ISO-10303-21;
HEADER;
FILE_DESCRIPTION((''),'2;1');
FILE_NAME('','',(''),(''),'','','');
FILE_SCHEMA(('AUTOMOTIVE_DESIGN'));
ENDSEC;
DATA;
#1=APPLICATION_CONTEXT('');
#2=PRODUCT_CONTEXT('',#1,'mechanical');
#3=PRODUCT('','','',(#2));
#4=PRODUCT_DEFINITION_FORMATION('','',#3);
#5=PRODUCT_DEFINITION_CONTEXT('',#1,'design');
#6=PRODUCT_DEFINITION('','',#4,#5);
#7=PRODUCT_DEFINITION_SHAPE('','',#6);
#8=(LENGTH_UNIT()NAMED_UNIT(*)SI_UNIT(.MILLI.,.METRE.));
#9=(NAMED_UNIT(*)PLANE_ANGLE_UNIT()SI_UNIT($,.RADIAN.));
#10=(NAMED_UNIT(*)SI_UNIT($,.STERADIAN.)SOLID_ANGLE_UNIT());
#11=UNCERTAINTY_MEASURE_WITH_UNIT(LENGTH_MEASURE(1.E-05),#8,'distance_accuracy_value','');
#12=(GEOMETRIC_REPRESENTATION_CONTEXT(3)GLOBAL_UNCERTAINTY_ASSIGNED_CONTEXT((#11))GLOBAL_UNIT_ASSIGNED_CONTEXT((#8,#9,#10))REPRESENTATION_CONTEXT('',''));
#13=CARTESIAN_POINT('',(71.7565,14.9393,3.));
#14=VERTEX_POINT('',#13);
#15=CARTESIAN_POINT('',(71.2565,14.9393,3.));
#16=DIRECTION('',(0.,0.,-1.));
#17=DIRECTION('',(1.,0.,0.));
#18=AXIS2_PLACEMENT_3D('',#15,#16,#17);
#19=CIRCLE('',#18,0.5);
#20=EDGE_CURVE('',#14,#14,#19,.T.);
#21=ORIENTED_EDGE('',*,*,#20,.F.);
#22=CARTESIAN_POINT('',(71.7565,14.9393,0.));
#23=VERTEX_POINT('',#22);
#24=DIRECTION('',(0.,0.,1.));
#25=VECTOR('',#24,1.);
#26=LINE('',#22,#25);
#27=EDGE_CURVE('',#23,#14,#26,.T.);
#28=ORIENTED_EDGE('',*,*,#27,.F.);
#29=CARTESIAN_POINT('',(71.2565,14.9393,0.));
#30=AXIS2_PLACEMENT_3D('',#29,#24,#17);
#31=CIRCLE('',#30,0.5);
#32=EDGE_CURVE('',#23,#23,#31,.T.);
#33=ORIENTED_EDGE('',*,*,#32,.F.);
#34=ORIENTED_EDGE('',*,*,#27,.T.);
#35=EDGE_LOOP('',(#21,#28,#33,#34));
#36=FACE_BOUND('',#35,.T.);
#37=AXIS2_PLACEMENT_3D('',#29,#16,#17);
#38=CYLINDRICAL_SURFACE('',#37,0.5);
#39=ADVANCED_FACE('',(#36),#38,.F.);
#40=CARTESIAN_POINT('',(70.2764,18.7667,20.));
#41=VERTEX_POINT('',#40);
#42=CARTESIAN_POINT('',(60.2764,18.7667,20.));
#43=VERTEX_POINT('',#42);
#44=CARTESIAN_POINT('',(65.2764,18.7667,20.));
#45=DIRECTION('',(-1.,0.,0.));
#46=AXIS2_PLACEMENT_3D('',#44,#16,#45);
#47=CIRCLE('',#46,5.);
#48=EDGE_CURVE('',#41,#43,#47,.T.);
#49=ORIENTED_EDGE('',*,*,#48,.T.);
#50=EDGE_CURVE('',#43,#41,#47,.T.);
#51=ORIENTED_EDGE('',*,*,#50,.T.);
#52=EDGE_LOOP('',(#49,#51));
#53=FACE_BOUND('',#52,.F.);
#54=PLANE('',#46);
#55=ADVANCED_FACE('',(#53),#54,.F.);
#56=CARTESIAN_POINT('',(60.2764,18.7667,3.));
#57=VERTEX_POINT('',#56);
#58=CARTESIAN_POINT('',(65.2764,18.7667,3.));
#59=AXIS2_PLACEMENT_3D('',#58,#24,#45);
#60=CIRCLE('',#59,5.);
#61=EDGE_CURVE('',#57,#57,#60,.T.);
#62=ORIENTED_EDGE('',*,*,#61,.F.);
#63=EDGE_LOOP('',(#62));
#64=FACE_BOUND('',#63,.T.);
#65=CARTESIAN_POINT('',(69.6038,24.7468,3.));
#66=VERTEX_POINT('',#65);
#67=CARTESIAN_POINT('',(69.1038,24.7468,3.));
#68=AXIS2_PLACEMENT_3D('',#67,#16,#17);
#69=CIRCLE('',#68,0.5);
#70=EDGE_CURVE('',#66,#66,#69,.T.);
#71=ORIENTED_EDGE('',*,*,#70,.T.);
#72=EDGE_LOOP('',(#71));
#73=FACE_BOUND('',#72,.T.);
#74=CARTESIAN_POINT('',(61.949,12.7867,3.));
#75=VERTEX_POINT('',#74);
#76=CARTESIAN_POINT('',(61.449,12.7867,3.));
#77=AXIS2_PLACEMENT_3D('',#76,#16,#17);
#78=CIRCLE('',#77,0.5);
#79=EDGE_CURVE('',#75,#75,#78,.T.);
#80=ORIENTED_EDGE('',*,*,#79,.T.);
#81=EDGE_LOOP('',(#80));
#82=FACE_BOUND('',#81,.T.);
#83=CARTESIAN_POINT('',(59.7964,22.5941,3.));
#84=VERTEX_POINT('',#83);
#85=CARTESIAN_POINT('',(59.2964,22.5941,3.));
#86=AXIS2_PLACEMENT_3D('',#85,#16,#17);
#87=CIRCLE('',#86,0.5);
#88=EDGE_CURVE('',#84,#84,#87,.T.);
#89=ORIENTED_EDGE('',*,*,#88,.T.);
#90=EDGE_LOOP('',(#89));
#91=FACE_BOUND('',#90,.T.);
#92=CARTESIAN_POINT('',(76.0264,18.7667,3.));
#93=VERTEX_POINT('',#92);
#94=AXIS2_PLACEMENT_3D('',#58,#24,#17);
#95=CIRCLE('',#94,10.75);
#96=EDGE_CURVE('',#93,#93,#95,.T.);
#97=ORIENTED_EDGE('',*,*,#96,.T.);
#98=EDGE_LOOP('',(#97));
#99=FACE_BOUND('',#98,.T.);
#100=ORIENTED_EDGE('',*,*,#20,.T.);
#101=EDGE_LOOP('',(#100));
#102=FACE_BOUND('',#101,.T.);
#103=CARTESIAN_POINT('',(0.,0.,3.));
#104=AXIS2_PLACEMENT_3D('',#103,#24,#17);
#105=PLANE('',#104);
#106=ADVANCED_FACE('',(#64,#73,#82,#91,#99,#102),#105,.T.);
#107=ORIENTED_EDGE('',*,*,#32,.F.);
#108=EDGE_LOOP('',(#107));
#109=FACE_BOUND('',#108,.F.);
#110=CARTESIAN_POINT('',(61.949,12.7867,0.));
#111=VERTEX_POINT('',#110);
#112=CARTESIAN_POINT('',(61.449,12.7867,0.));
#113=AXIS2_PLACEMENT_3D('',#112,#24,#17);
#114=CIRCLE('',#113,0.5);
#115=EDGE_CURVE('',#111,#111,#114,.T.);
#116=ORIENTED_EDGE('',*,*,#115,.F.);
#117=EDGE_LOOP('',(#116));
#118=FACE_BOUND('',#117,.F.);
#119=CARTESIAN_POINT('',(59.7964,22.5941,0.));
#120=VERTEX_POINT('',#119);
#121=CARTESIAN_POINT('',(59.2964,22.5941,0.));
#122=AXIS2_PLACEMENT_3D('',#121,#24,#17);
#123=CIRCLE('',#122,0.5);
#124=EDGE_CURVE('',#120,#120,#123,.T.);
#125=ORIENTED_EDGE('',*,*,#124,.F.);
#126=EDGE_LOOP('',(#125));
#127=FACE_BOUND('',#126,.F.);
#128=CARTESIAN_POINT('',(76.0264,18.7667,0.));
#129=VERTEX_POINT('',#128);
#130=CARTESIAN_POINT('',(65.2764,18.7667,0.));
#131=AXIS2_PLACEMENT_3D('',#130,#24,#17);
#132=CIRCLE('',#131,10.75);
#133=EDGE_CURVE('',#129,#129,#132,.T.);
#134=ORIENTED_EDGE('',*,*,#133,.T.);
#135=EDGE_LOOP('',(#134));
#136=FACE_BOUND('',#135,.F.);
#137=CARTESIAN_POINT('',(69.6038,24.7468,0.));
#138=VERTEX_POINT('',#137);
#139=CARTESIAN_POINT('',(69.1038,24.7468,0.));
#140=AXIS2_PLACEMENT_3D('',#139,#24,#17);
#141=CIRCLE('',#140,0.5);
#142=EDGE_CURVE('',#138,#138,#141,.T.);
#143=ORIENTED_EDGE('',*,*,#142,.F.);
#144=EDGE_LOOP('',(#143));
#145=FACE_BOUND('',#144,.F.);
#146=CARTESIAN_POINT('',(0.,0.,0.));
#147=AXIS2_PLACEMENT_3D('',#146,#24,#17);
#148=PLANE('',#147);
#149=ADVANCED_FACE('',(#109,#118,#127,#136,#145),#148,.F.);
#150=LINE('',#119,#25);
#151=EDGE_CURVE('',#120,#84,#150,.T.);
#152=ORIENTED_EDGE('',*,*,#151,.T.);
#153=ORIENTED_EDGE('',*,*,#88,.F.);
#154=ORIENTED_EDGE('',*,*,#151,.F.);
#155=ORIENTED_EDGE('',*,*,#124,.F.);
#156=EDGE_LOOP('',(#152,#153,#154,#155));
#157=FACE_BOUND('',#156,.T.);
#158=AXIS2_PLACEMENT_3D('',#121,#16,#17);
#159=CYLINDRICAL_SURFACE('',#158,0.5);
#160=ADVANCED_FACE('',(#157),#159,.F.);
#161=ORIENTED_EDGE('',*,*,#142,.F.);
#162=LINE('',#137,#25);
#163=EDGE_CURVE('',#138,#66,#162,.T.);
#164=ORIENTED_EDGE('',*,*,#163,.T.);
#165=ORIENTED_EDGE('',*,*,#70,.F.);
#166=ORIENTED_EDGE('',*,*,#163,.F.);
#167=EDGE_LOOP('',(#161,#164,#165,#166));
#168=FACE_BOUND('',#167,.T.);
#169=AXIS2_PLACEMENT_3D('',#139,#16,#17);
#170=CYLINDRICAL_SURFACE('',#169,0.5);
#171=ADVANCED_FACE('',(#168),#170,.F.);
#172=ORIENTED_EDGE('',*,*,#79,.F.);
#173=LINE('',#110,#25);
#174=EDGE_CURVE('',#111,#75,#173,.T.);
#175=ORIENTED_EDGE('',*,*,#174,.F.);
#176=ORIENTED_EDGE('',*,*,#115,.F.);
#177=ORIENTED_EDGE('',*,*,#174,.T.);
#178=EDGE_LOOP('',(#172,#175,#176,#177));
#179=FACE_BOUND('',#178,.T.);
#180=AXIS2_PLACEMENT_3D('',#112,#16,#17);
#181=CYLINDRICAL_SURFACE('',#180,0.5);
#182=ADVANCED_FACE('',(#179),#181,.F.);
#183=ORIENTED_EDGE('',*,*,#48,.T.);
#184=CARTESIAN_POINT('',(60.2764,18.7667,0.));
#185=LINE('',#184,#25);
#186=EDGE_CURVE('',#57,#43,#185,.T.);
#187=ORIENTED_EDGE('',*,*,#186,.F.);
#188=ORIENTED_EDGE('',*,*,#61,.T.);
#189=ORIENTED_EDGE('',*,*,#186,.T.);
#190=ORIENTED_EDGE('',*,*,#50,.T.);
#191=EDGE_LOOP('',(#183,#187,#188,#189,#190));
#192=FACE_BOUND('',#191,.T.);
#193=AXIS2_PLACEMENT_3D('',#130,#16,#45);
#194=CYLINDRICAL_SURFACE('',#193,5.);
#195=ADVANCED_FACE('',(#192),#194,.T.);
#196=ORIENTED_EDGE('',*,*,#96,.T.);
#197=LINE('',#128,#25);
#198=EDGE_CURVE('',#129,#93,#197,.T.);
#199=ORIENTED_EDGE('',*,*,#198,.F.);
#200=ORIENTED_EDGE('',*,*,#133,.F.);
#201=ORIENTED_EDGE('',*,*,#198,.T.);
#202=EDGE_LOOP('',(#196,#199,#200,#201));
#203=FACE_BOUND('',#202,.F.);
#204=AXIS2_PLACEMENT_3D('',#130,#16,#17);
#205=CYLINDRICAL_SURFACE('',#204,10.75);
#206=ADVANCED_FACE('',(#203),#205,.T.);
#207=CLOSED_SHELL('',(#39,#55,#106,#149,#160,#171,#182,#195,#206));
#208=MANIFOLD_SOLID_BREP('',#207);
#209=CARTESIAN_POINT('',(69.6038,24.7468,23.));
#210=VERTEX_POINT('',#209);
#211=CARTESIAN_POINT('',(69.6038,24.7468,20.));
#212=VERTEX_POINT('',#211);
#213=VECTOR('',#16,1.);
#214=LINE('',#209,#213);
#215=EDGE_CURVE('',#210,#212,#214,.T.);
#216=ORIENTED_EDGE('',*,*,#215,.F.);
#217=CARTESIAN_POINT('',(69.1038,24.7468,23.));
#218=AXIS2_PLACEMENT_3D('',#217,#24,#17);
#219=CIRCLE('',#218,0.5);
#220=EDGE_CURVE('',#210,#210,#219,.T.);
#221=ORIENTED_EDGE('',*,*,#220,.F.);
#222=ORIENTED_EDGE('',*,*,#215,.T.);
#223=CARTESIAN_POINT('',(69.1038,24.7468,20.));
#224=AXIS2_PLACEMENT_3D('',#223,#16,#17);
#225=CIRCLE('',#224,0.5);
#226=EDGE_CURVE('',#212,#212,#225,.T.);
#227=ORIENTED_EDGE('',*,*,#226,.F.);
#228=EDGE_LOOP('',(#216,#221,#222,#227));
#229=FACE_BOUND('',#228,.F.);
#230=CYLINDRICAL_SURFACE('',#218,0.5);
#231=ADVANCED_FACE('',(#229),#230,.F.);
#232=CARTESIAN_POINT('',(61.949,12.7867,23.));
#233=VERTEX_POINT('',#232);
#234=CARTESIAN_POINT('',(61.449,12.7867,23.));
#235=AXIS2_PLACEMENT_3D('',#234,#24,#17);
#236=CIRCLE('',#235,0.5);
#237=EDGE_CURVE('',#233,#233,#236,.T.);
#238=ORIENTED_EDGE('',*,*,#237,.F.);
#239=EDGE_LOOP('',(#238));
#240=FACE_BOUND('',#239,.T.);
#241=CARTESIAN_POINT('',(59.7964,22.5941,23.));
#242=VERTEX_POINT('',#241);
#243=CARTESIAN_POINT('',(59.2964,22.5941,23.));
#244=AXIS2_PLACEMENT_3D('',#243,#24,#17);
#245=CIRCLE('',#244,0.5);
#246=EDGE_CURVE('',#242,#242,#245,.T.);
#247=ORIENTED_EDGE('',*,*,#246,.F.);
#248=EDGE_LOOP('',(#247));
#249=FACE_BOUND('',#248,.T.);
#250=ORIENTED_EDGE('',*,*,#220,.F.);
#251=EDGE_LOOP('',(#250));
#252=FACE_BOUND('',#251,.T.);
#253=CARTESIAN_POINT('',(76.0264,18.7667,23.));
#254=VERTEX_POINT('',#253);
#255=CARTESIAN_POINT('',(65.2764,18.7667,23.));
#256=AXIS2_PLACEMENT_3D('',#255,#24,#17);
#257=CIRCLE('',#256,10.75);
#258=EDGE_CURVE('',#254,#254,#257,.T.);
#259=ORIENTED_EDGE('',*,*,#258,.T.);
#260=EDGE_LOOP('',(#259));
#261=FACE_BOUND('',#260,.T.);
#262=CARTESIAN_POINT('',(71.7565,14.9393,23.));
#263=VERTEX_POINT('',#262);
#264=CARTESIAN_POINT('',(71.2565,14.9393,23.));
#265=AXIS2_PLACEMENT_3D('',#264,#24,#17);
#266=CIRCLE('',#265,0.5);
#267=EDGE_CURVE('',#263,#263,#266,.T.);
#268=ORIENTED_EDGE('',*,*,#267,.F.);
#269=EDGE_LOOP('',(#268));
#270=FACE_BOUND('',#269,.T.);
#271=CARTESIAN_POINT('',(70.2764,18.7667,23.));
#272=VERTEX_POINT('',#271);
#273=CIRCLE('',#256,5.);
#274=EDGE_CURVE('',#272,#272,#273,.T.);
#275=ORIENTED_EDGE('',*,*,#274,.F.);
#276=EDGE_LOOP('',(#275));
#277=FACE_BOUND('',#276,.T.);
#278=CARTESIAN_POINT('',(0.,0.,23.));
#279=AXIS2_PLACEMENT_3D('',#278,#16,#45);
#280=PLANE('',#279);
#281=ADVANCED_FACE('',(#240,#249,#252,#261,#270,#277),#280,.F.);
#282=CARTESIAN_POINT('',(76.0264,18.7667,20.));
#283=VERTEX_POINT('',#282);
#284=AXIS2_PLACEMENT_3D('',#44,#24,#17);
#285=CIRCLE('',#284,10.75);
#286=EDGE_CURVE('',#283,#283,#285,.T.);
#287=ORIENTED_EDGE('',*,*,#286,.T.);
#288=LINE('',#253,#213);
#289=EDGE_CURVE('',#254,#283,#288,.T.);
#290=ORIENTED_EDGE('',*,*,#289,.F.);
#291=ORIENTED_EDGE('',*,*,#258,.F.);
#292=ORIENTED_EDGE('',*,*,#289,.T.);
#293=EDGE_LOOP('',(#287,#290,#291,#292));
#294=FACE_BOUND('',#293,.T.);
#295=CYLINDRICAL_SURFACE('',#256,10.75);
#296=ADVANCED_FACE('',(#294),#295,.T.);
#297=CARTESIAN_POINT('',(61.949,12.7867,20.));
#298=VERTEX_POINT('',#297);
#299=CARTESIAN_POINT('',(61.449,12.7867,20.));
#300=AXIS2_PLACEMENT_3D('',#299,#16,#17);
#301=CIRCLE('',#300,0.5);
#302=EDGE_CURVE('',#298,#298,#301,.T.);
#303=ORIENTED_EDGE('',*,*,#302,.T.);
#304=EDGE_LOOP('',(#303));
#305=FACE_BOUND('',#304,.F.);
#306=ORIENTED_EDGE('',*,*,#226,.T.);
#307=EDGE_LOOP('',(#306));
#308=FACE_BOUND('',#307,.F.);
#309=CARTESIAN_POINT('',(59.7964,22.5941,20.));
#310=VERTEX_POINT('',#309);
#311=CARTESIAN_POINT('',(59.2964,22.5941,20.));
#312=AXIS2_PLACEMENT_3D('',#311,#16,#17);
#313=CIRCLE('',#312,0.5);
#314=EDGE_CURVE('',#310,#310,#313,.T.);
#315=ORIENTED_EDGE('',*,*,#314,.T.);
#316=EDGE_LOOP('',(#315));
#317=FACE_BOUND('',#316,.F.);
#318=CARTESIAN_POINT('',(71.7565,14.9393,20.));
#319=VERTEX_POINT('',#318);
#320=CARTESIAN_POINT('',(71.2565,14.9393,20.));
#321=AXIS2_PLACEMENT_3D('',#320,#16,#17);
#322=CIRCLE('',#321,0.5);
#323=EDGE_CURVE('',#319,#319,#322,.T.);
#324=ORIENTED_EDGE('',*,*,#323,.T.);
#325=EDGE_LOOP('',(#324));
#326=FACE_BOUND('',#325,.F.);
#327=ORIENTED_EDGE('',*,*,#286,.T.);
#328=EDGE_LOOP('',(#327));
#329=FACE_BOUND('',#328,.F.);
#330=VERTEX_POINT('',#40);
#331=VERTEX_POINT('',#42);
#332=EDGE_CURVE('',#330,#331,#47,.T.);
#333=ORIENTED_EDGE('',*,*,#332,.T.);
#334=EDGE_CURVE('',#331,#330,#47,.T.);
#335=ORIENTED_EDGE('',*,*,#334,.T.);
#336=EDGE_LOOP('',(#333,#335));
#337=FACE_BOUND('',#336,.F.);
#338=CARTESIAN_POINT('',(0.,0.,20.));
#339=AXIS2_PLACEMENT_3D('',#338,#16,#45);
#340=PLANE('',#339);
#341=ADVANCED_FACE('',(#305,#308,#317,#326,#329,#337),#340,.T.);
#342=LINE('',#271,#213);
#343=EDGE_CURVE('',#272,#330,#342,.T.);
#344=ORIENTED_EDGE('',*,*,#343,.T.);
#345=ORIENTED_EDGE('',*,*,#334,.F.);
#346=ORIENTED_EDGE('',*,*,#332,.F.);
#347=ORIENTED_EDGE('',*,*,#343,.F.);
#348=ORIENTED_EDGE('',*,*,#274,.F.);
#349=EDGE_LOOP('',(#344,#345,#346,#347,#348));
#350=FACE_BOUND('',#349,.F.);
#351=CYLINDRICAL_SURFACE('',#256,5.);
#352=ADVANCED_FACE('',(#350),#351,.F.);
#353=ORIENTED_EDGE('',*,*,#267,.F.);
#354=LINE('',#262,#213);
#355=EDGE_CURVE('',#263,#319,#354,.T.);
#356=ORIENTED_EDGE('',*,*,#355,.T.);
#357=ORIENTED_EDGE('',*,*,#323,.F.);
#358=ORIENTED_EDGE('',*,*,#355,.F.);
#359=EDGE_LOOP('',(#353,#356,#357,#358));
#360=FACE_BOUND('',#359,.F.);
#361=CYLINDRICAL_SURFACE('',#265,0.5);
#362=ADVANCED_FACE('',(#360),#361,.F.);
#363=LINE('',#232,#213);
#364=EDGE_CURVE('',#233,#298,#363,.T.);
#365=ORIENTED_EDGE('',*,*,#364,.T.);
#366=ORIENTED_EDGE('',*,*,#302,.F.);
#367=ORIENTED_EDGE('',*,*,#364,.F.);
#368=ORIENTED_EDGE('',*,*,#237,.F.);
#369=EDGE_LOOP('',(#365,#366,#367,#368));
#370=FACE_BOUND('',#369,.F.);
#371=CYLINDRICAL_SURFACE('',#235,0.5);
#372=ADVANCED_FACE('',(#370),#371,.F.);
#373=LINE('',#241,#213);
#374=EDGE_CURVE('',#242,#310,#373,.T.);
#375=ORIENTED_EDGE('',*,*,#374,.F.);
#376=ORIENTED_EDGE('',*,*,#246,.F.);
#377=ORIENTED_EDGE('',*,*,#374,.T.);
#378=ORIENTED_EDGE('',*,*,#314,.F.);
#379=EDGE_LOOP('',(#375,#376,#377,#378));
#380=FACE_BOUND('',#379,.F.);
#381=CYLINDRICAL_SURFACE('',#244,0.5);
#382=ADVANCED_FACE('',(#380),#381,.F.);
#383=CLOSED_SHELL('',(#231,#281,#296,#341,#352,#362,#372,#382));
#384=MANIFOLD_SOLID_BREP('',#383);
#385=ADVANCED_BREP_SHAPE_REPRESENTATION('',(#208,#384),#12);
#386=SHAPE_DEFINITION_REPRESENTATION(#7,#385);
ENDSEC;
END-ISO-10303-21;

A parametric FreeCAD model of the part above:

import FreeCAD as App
import Part
import Sketcher

V = App.Vector
Q = App.Units.Quantity

doc = App.newDocument("Part")
body = doc.addObject("PartDesign::Body", "Body")
body.AllowCompound = True

# Sketch on XY plane
sketch1 = body.newObject("Sketcher::SketchObject", "Sketch")
sketch1.AttachmentSupport = (doc.getObject("XY_Plane"), [""])
sketch1.MapMode = "FlatFace"
sketch1.addGeometry([
    Part.Circle(V(65.3, 18.8, 0), V(0, 0, 1), 10.8),  # 0
    Part.Circle(V(59.3, 22.6, 0), V(0, 0, 1), 0.5),  # 1
    Part.Circle(V(61.4, 12.8, 0), V(0, 0, 1), 0.5),  # 2
    Part.Circle(V(71.3, 14.9, 0), V(0, 0, 1), 0.5),  # 3
    Part.Circle(V(69.1, 24.7, 0), V(0, 0, 1), 0.5),  # 4
    Part.Circle(V(65.3, 18.8, 0), V(0, 0, 1), 5),  # 5
], False)
sketch1.addConstraint([
    Sketcher.Constraint("Coincident", 5, 3, 0, 3),
    Sketcher.Constraint("Equal", 1, 2),
    Sketcher.Constraint("Equal", 2, 3),
    Sketcher.Constraint("Equal", 3, 4),
    Sketcher.Constraint("Diameter", 5, Q("10 mm")),
    Sketcher.Constraint("Diameter", 0, Q("21.5 mm")),
    Sketcher.Constraint("Diameter", 1, Q("1 mm")),
    Sketcher.Constraint("DistanceX", 1, 3, 0, 3, Q("5.98 mm")),
    Sketcher.Constraint("DistanceY", 2, 3, 0, 3, Q("5.98 mm")),
    Sketcher.Constraint("DistanceX", 0, 3, 3, 3, Q("5.98 mm")),
    Sketcher.Constraint("DistanceY", 0, 3, 4, 3, Q("5.98 mm")),
    Sketcher.Constraint("DistanceY", -1, 1, 1, 3, Q("22.594 mm")),
    Sketcher.Constraint("DistanceX", -1, 1, 2, 3, Q("61.449 mm")),
    Sketcher.Constraint("DistanceX", -1, 1, 0, 3, Q("65.2764 mm")),
    Sketcher.Constraint("DistanceY", -1, 1, 0, 3, Q("18.7667 mm")),
    Sketcher.Constraint("DistanceY", -1, 1, 3, 3, Q("14.9393 mm")),
    Sketcher.Constraint("DistanceX", -1, 1, 4, 3, Q("69.1038 mm")),
])
pad1 = body.newObject("PartDesign::Pad", "Pad")
pad1.Profile = sketch1
pad1.Length = 3

# Sketch on XY plane
sketch2 = body.newObject("Sketcher::SketchObject", "Sketch001")
sketch2.AttachmentSupport = (doc.getObject("XY_Plane"), [""])
sketch2.MapMode = "FlatFace"
sketch2.addGeometry(Part.Circle(V(65, 19, 0), V(0, 0, 1), 5), False)
sketch2.addConstraint([
    Sketcher.Constraint("Diameter", 0, Q("10 mm")),
    Sketcher.Constraint("DistanceX", -1, 1, 0, 3, Q("65.2764 mm")),
    Sketcher.Constraint("DistanceY", -1, 1, 0, 3, Q("18.7667 mm")),
])
pad2 = body.newObject("PartDesign::Pad", "Pad001")
pad2.Profile = sketch2
pad2.Length = 20
doc.recompute()

datumplane = body.newObject("PartDesign::Plane", "DatumPlane")
datumplane.AttachmentSupport = (doc.getObject("XY_Plane"), [""])
datumplane.MapMode = "FlatFace"
datumplane.AttachmentOffset = App.Placement(V(0, 0, 11.5), App.Rotation())
mirrored = body.newObject("PartDesign::Mirrored", "Mirrored")
mirrored.Originals = [pad1]
mirrored.MirrorPlane = (datumplane, [""])
body.Tip = mirrored

doc.recompute()
